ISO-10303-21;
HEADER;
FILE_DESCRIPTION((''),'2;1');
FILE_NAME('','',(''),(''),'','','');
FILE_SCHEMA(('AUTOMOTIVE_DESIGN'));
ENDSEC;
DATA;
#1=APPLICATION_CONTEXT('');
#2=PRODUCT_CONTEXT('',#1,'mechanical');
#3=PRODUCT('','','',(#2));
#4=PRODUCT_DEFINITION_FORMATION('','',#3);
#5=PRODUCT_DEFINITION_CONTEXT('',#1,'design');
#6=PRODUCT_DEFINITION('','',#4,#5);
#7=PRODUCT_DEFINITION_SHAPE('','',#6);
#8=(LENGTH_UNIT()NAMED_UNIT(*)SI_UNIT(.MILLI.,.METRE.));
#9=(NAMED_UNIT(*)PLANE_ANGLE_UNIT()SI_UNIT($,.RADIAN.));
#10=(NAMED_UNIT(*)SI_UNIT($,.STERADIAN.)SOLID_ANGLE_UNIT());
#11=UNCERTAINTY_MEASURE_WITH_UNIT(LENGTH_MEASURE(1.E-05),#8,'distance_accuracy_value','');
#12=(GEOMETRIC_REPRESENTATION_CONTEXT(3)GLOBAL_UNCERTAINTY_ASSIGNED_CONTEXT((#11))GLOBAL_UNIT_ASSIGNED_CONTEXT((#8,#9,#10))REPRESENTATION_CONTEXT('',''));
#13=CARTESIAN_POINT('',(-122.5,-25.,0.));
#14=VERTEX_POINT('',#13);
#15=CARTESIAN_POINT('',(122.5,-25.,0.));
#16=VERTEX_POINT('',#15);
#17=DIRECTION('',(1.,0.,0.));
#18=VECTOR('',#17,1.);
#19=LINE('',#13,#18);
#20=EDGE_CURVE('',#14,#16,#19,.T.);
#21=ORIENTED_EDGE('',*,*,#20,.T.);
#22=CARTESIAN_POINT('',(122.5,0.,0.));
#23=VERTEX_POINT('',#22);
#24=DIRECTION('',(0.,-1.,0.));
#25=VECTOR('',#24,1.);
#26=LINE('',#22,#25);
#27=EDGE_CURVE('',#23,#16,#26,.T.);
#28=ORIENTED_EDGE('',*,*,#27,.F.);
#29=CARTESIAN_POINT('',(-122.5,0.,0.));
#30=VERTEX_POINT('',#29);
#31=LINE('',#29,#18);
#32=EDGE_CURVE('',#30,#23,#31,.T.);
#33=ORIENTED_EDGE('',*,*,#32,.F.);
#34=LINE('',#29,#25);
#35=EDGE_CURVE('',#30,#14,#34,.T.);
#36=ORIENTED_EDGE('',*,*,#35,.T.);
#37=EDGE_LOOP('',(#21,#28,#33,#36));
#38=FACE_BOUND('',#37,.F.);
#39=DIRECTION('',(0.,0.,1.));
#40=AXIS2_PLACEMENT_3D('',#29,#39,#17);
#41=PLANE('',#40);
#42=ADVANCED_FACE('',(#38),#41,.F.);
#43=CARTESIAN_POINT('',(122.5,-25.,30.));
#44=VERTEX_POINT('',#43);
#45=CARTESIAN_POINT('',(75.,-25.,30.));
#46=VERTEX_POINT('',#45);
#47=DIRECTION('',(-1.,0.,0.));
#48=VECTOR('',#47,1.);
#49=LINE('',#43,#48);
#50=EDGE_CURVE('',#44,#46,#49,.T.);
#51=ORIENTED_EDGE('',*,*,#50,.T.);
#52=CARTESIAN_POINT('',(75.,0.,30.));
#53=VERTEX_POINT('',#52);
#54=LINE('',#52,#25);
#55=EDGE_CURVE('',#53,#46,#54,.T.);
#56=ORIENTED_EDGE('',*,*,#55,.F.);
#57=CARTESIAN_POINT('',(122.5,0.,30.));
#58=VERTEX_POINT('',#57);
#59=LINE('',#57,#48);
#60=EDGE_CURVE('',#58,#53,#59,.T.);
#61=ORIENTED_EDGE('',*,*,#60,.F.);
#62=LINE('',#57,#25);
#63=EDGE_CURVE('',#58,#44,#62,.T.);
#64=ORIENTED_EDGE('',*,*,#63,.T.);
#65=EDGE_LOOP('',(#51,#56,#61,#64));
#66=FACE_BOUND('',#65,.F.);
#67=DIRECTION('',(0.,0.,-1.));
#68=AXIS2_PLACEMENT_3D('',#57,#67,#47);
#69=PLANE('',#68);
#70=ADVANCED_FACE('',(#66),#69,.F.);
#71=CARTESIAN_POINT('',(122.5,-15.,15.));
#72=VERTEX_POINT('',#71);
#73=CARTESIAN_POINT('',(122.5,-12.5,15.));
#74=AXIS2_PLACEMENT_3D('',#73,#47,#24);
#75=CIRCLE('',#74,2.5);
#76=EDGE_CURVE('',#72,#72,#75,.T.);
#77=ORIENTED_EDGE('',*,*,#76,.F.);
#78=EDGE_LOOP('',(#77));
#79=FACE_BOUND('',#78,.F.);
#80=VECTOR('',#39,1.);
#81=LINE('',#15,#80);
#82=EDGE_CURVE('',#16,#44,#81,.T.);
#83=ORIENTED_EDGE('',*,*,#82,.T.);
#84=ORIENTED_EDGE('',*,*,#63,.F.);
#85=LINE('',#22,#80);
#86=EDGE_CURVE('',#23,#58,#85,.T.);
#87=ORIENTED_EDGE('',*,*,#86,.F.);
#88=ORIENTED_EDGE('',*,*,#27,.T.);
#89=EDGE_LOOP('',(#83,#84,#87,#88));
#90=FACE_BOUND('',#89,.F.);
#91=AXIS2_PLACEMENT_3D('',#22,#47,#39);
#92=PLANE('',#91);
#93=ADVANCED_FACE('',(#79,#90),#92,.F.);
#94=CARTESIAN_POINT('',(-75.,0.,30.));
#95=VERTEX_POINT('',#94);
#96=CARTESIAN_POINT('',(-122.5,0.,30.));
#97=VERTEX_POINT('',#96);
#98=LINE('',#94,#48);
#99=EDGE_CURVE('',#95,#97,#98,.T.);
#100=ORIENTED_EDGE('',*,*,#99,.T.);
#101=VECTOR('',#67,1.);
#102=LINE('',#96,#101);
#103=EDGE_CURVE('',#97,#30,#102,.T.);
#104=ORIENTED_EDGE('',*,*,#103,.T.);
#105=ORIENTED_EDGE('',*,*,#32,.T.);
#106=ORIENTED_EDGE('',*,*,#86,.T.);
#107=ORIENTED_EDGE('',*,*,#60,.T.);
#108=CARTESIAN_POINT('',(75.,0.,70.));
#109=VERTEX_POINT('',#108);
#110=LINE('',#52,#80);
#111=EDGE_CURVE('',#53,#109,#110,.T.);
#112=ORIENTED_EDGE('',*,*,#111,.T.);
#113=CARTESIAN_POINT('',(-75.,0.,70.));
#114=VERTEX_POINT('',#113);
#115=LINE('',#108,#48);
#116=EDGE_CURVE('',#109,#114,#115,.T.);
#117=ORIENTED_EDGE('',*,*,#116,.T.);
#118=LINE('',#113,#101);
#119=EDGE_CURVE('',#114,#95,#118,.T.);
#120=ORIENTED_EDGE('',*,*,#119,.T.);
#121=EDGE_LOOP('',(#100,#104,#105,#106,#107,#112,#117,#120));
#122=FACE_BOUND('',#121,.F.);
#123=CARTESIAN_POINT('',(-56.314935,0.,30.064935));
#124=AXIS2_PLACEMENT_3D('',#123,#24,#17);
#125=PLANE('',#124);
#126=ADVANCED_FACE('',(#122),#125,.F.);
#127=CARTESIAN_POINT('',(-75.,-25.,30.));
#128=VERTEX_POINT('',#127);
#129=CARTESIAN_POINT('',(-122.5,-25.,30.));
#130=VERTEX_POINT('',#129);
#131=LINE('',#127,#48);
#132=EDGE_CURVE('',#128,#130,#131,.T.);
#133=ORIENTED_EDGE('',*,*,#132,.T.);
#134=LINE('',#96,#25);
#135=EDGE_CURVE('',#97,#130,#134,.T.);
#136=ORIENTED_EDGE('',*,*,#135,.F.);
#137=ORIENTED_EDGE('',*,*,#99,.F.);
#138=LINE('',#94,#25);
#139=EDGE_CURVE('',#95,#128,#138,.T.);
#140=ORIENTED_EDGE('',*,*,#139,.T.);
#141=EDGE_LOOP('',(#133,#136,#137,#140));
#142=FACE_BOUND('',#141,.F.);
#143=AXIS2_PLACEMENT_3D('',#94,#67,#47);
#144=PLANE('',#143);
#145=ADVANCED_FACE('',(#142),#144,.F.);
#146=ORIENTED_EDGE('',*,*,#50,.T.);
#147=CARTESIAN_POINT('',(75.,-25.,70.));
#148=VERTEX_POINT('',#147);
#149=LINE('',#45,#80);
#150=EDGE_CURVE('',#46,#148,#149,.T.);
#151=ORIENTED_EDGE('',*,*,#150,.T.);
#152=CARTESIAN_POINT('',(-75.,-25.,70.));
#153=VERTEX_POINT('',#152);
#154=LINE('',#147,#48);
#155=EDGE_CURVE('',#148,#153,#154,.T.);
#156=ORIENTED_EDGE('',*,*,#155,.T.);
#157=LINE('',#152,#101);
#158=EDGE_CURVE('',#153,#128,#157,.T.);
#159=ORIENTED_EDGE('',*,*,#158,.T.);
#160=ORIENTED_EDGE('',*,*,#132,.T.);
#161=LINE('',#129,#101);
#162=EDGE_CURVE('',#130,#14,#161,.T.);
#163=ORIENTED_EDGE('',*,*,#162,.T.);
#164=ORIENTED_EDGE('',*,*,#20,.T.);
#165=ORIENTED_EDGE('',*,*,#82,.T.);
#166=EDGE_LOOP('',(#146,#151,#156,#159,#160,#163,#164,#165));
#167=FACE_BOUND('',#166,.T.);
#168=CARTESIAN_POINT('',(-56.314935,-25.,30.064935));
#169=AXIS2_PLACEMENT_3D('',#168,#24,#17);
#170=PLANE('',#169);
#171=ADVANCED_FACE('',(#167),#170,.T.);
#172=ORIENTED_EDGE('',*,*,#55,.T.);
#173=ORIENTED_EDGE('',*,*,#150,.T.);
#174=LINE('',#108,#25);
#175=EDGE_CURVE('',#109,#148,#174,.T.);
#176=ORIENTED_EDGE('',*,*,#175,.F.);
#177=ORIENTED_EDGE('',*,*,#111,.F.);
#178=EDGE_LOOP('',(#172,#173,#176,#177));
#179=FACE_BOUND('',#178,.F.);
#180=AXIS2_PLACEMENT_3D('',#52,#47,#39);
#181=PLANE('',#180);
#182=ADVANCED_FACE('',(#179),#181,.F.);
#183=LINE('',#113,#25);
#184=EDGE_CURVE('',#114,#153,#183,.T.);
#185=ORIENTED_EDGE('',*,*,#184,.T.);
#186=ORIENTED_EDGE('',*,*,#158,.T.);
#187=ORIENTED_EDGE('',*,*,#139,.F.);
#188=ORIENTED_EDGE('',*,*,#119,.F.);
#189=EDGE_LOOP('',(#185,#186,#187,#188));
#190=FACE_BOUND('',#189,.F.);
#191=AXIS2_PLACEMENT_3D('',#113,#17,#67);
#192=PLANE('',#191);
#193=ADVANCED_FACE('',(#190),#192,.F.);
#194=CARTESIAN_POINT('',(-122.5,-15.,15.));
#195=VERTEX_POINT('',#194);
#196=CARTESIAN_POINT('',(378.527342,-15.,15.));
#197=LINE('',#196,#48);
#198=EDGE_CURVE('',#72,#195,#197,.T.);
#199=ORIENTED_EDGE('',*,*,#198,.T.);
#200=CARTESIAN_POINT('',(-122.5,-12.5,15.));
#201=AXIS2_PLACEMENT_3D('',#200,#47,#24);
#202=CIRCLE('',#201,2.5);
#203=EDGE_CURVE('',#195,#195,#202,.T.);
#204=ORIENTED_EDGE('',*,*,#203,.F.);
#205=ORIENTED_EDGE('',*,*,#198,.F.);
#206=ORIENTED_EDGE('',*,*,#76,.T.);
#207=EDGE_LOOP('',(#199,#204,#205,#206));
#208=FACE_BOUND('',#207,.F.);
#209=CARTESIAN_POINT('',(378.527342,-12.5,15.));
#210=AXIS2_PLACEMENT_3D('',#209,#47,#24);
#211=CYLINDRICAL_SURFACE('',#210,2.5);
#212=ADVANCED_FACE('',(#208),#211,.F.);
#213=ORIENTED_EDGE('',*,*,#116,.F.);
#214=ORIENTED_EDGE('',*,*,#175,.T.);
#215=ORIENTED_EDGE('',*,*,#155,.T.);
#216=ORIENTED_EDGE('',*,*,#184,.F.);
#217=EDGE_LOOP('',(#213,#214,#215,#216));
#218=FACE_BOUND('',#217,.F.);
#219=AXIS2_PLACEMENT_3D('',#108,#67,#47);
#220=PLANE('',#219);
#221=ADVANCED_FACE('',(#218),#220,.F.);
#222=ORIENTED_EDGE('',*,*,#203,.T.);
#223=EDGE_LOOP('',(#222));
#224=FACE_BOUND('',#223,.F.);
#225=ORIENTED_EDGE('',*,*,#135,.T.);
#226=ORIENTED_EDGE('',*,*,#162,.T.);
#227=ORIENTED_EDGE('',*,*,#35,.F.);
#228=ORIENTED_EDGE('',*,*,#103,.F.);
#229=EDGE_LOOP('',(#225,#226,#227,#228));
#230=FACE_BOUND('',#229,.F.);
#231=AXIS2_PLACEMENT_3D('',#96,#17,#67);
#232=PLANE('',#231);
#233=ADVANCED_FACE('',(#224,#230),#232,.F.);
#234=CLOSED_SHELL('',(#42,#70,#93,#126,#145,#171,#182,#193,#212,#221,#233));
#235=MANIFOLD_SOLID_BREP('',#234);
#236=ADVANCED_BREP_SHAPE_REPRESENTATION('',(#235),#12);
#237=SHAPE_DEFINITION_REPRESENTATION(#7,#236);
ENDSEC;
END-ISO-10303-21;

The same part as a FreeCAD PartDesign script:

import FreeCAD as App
import Part
import Sketcher

V = App.Vector

doc = App.newDocument("Part")
body = doc.addObject("PartDesign::Body", "Body")

# Sketch on XZ plane
sketch1 = doc.addObject("Sketcher::SketchObject", "Sketch")
body.addObject(sketch1)
sketch1.AttachmentSupport = (doc.XZ_Plane, [""])
sketch1.MapMode = "FlatFace"
sketch1.addGeometry([
    Part.LineSegment(V(-122, 30, 0), V(-122, 0, 0)),  # 0
    Part.LineSegment(V(-122, 0, 0), V(122, 0, 0)),  # 1
    Part.LineSegment(V(122, 0, 0), V(122, 30, 0)),  # 2
    Part.LineSegment(V(122, 30, 0), V(75, 30, 0)),  # 3
    Part.LineSegment(V(75, 30, 0), V(75, 70, 0)),  # 4
    Part.LineSegment(V(75, 70, 0), V(-75, 70, 0)),  # 5
    Part.LineSegment(V(-75, 70, 0), V(-75, 30, 0)),  # 6
    Part.LineSegment(V(-75, 30, 0), V(-122, 30, 0)),  # 7
], False)
sketch1.addConstraint([
    Sketcher.Constraint("Coincident", 0, 2, 1, 1),
    Sketcher.Constraint("Coincident", 1, 2, 2, 1),
    Sketcher.Constraint("Coincident", 2, 2, 3, 1),
    Sketcher.Constraint("Coincident", 3, 2, 4, 1),
    Sketcher.Constraint("Coincident", 4, 2, 5, 1),
    Sketcher.Constraint("Coincident", 5, 2, 6, 1),
    Sketcher.Constraint("Coincident", 6, 2, 7, 1),
    Sketcher.Constraint("Coincident", 7, 2, 0, 1),
    Sketcher.Constraint("Vertical", 0),
    Sketcher.Constraint("Horizontal", 1),
    Sketcher.Constraint("Vertical", 2),
    Sketcher.Constraint("Horizontal", 3),
    Sketcher.Constraint("Vertical", 4),
    Sketcher.Constraint("Horizontal", 5),
    Sketcher.Constraint("Vertical", 6),
    Sketcher.Constraint("Horizontal", 7),
    Sketcher.Constraint("Symmetric", 0, 2, 1, 2, -1, 1),
    Sketcher.Constraint("Symmetric", 3, 2, 6, 2, -2),
    Sketcher.Constraint("DistanceX", 1, 1, 1, 2, 245.0),
    Sketcher.Constraint("DistanceX", 5, 2, 5, 1, 150.0),
    Sketcher.Constraint("DistanceY", 0, 2, 0, 1, 30.0),
    Sketcher.Constraint("DistanceY", 4, 1, 4, 2, 40.0),
])
pad1 = doc.addObject("PartDesign::Pad", "Pad")
body.addObject(pad1)
pad1.Profile = sketch1
pad1.Length = 25

# Sketch on YZ plane
sketch2 = doc.addObject("Sketcher::SketchObject", "Sketch001")
body.addObject(sketch2)
sketch2.AttachmentSupport = (doc.YZ_Plane, [""])
sketch2.MapMode = "FlatFace"
sketch2.AttachmentOffset = App.Placement(V(0, 0, 122.5), App.Rotation())
sketch2.addGeometry(Part.Circle(V(-12.5, 15, 0), V(0, 0, 1), 2.5), False)
sketch2.addConstraint([
    Sketcher.Constraint("Diameter", 0, 5.0),
    Sketcher.Constraint("DistanceY", -1, 1, 0, 3, 15.0),
    Sketcher.Constraint("DistanceX", 0, 3, -1, 1, 12.5),
])
doc.recompute()
hole = doc.addObject("PartDesign::Hole", "Hole")
body.addObject(hole)
hole.Profile = sketch2
hole.ThreadType = "None"
hole.Diameter = 5
hole.DepthType = "ThroughAll"

doc.recompute()
